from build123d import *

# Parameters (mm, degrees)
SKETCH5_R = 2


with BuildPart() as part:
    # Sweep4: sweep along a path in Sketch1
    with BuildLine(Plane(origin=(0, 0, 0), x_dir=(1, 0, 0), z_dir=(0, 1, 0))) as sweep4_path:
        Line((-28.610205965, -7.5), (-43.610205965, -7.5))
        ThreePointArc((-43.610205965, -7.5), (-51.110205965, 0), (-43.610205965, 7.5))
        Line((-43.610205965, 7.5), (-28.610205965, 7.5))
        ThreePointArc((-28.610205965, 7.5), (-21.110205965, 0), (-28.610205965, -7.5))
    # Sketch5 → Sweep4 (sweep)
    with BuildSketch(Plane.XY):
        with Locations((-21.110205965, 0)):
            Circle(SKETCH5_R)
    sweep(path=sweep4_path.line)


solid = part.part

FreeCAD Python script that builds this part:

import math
import FreeCAD as App
import Part
import Sketcher
from FreeCAD import Vector

doc = App.newDocument("Part")
body = doc.addObject("PartDesign::Body", "Body")

sketch1 = body.newObject("Sketcher::SketchObject", "Sketch")
sketch1.AttachmentSupport = (doc.getObject("XY_Plane"), [""])
sketch1.MapMode = "FlatFace"
sketch1.addGeometry(Part.Circle(Vector(-21.110206, 0, 0), Vector(0, 0, 1), 2), False)
sketch1.addConstraint([
    Sketcher.Constraint("PointOnObject", 0, 3, -1),
    Sketcher.Constraint("Diameter", 0, 4.0),
    Sketcher.Constraint("DistanceX", 0, 3, -1, 1, 21.110206),
])

sketch2 = body.newObject("Sketcher::SketchObject", "Sketch001")
sketch2.AttachmentSupport = (doc.getObject("XZ_Plane"), [""])
sketch2.MapMode = "FlatFace"
sketch2.addGeometry([
    Part.LineSegment(Vector(-28.610206, 7.5, 0), Vector(-43.610206, 7.5, 0)),
    Part.ArcOfCircle(Part.Circle(Vector(-43.610206, 0, 0), Vector(0, 0, 1), 7.5), math.radians(90), math.radians(270)),
    Part.LineSegment(Vector(-43.610206, -7.5, 0), Vector(-28.610206, -7.5, 0)),
    Part.ArcOfCircle(Part.Circle(Vector(-28.610206, 0, 0), Vector(0, 0, 1), 7.5), math.radians(-90), math.radians(90)),
], False)
sketch2.addConstraint([
    Sketcher.Constraint("Tangent", 0, 2, 1, 1),
    Sketcher.Constraint("Tangent", 1, 2, 2, 1),
    Sketcher.Constraint("Tangent", 2, 2, 3, 1),
    Sketcher.Constraint("Tangent", 3, 2, 0, 1),
    Sketcher.Constraint("Horizontal", 0),
    Sketcher.Constraint("Horizontal", 2),
    Sketcher.Constraint("PointOnObject", 1, 3, -1),
    Sketcher.Constraint("Radius", 1, 7.5),
    Sketcher.Constraint("DistanceX", 0, 2, 0, 1, 15.0),
    Sketcher.Constraint("DistanceX", 1, 3, -1, 1, 43.610206),
])
doc.recompute()

additivepipe = body.newObject("PartDesign::AdditivePipe", "AdditivePipe")
additivepipe.Profile = sketch1
additivepipe.Spine = (sketch2, ["Edge1", "Edge2", "Edge3", "Edge4"])

doc.recompute()
